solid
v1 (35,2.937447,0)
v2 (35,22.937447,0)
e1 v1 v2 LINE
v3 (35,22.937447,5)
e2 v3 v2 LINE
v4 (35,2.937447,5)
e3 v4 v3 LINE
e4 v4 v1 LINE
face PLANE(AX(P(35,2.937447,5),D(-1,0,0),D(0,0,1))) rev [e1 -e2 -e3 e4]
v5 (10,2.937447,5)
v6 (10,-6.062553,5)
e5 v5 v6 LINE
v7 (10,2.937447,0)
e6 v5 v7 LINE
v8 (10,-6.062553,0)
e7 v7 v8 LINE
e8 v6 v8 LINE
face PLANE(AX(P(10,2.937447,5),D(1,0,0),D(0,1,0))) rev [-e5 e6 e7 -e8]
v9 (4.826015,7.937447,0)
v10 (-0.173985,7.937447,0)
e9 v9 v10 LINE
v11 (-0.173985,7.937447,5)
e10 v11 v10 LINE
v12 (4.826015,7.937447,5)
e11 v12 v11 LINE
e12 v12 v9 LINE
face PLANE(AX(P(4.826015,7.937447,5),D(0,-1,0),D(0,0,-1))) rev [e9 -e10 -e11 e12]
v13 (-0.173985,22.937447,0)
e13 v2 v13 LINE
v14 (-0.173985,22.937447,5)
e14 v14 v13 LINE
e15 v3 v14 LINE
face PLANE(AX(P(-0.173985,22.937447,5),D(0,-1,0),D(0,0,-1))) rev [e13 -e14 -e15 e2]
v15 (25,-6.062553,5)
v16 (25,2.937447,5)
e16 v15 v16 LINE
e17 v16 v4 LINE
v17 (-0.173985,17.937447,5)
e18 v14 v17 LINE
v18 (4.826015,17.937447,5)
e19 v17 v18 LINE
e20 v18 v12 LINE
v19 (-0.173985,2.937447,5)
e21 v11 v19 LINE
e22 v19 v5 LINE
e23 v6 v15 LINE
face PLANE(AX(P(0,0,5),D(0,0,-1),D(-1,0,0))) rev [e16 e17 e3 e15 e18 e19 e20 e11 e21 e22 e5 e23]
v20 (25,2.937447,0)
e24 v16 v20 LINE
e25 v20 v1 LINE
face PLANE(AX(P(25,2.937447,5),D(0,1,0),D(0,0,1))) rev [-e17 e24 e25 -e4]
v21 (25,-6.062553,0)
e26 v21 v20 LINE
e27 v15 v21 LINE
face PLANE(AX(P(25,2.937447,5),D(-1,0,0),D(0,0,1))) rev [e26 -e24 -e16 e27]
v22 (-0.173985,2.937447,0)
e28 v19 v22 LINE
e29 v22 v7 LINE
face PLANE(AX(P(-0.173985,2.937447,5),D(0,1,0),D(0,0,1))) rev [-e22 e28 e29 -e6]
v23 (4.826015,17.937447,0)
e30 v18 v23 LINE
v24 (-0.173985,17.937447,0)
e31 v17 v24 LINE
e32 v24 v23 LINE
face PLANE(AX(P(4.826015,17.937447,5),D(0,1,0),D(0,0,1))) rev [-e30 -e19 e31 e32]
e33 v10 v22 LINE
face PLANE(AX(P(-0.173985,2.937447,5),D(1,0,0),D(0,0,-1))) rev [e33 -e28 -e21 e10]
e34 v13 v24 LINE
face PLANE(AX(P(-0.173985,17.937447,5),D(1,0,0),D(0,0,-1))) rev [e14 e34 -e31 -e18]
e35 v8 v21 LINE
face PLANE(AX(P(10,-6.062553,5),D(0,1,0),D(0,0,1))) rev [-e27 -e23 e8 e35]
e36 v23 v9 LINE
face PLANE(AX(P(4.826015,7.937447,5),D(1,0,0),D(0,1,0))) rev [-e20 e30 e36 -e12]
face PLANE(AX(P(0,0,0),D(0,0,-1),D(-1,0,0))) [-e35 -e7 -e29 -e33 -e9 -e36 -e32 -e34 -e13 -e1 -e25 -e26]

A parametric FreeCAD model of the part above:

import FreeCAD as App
import Part
import Sketcher
Q = App.Units.Quantity

doc = App.newDocument("Part")
params = doc.addObject("Spreadsheet::Sheet", "Params")
for row, (alias, value) in enumerate([
    ("sketch1_width", "15 mm"),
    ("sketch1_width2", "10 mm"),
    ("sketch1_width3", "5 mm"),
    ("sketch1_height", "9 mm"),
    ("pad1_length", "5 mm"),
], start=1):
    params.set(f"A{row}", alias)
    params.set(f"B{row}", "=" + value)
    params.setAlias(f"B{row}", alias)

body = doc.addObject("PartDesign::Body", "Body")

# Sketch on XY plane
sketch1 = body.newObject("Sketcher::SketchObject", "Sketch")
sketch1.AttachmentSupport = (doc.getObject("XY_Plane"), [""])
sketch1.MapMode = "FlatFace"
sketch1.addGeometry(Part.LineSegment(App.Vector(10, -6, 0), App.Vector(25, -6, 0)), False)
sketch1.addGeometry(Part.LineSegment(App.Vector(25, -6, 0), App.Vector(25, 3, 0)), False)
sketch1.addGeometry(Part.LineSegment(App.Vector(25, 3, 0), App.Vector(35, 3, 0)), False)
sketch1.addGeometry(Part.LineSegment(App.Vector(35, 3, 0), App.Vector(35, 23, 0)), False)
sketch1.addGeometry(Part.LineSegment(App.Vector(35, 23, 0), App.Vector(0, 23, 0)), False)
sketch1.addGeometry(Part.LineSegment(App.Vector(0, 23, 0), App.Vector(0, 18, 0)), False)
sketch1.addGeometry(Part.LineSegment(App.Vector(0, 18, 0), App.Vector(5, 18, 0)), False)
sketch1.addGeometry(Part.LineSegment(App.Vector(5, 18, 0), App.Vector(5, 8, 0)), False)
sketch1.addGeometry(Part.LineSegment(App.Vector(5, 8, 0), App.Vector(0, 8, 0)), False)
sketch1.addGeometry(Part.LineSegment(App.Vector(0, 8, 0), App.Vector(0, 3, 0)), False)
sketch1.addGeometry(Part.LineSegment(App.Vector(0, 3, 0), App.Vector(10, 3, 0)), False)
sketch1.addGeometry(Part.LineSegment(App.Vector(10, 3, 0), App.Vector(10, -6, 0)), False)
sketch1.addConstraint(Sketcher.Constraint("Coincident", 0, 2, 1, 1))
sketch1.addConstraint(Sketcher.Constraint("Coincident", 1, 2, 2, 1))
sketch1.addConstraint(Sketcher.Constraint("Coincident", 2, 2, 3, 1))
sketch1.addConstraint(Sketcher.Constraint("Coincident", 3, 2, 4, 1))
sketch1.addConstraint(Sketcher.Constraint("Coincident", 4, 2, 5, 1))
sketch1.addConstraint(Sketcher.Constraint("Coincident", 5, 2, 6, 1))
sketch1.addConstraint(Sketcher.Constraint("Coincident", 6, 2, 7, 1))
sketch1.addConstraint(Sketcher.Constraint("Coincident", 7, 2, 8, 1))
sketch1.addConstraint(Sketcher.Constraint("Coincident", 8, 2, 9, 1))
sketch1.addConstraint(Sketcher.Constraint("Coincident", 9, 2, 10, 1))
sketch1.addConstraint(Sketcher.Constraint("Coincident", 10, 2, 11, 1))
sketch1.addConstraint(Sketcher.Constraint("Coincident", 11, 2, 0, 1))
sketch1.addConstraint(Sketcher.Constraint("Horizontal", 0))
sketch1.addConstraint(Sketcher.Constraint("Vertical", 1))
sketch1.addConstraint(Sketcher.Constraint("Horizontal", 2))
sketch1.addConstraint(Sketcher.Constraint("Vertical", 3))
sketch1.addConstraint(Sketcher.Constraint("Horizontal", 4))
sketch1.addConstraint(Sketcher.Constraint("Vertical", 5))
sketch1.addConstraint(Sketcher.Constraint("Horizontal", 6))
sketch1.addConstraint(Sketcher.Constraint("Vertical", 7))
sketch1.addConstraint(Sketcher.Constraint("Horizontal", 8))
sketch1.addConstraint(Sketcher.Constraint("Vertical", 9))
sketch1.addConstraint(Sketcher.Constraint("Horizontal", 10))
sketch1.addConstraint(Sketcher.Constraint("Vertical", 11))
sketch1.addConstraint(Sketcher.Constraint("Horizontal", 2, 2, 9, 2))
sketch1.addConstraint(Sketcher.Constraint("Vertical", 5, 2, 8, 2))
sketch1.addConstraint(Sketcher.Constraint("Equal", 8, 5))
sketch1.addConstraint(Sketcher.Constraint("Equal", 2, 7))
sketch1.addConstraint(Sketcher.Constraint("Equal", 5, 9))
sketch1.addConstraint(Sketcher.Constraint("DistanceX", 0, 1, 0, 2, Q("15 mm")))
sketch1.addConstraint(Sketcher.Constraint("DistanceX", 2, 1, 2, 2, Q("10 mm")))
sketch1.addConstraint(Sketcher.Constraint("DistanceX", 6, 1, 6, 2, Q("5 mm")))
sketch1.addConstraint(Sketcher.Constraint("DistanceY", 1, 1, 1, 2, Q("9 mm")))
sketch1.addConstraint(Sketcher.Constraint("DistanceX", -1, 1, 0, 2, Q("25 mm")))
sketch1.addConstraint(Sketcher.Constraint("DistanceX", 4, 2, 4, 1, Q("35.173985 mm")))
sketch1.addConstraint(Sketcher.Constraint("DistanceY", 0, 2, -1, 1, Q("6.062553 mm")))
sketch1.setExpression("Constraints[29]", "Params.sketch1_width")
sketch1.setExpression("Constraints[30]", "Params.sketch1_width2")
sketch1.setExpression("Constraints[31]", "Params.sketch1_width3")
sketch1.setExpression("Constraints[32]", "Params.sketch1_height")
pad1 = body.newObject("PartDesign::Pad", "Pad")
pad1.Profile = sketch1
pad1.setExpression("Length", "Params.pad1_length")

doc.recompute()
